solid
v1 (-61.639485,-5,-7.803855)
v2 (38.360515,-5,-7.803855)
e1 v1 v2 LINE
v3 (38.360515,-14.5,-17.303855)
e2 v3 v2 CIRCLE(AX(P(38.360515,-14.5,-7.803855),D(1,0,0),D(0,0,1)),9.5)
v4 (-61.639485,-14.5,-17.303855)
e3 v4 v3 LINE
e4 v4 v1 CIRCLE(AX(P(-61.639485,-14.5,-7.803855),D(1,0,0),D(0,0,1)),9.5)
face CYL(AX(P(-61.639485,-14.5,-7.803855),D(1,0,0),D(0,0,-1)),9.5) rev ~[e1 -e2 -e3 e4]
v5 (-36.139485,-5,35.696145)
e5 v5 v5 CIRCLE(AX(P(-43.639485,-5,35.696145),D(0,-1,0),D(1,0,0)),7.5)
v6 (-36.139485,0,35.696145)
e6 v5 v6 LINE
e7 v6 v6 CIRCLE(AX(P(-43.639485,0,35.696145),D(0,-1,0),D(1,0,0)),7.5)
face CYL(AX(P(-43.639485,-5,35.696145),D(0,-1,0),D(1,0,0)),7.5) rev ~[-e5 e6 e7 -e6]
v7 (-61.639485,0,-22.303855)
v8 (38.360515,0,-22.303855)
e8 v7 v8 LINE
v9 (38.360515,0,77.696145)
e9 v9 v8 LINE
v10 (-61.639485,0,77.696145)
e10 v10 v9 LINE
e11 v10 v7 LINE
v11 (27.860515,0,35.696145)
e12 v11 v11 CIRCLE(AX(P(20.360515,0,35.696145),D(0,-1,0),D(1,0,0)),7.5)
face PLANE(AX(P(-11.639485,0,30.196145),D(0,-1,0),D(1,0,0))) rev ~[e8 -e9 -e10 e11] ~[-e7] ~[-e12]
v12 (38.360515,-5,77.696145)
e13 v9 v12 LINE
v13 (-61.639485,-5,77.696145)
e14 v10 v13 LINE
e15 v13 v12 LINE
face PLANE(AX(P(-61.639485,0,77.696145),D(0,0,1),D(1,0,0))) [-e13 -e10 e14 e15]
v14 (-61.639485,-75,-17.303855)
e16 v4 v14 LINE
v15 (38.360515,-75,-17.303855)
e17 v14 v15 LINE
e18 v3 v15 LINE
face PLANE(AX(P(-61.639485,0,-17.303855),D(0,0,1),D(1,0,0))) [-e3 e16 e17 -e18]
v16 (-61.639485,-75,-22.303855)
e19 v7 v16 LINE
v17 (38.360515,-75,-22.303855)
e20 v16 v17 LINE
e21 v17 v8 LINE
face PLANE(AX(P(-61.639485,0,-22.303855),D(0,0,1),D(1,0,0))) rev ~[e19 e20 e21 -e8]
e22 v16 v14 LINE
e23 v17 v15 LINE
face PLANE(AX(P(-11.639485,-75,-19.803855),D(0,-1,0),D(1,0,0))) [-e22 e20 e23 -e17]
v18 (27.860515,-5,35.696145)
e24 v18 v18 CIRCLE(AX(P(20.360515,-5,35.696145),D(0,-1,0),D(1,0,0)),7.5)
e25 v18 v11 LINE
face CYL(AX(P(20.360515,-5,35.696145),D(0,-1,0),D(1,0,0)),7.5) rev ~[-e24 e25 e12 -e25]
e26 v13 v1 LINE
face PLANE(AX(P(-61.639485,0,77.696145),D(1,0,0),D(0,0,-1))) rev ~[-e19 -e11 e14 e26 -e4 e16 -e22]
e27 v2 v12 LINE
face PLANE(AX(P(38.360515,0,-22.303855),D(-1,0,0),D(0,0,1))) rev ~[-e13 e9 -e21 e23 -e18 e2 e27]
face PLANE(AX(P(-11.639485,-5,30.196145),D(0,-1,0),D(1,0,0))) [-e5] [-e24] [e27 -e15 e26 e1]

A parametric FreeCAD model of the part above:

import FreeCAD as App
import Part
import Sketcher
from FreeCAD import Vector
Q = App.Units.Quantity


def edges_at(feature, points):
    """Names of the edges that pass closest to the given points."""
    edges = feature.Shape.Edges
    near = lambda p: min(range(len(edges)), key=lambda i: edges[i].distToShape(Part.Vertex(*p))[0])
    return sorted({f"Edge{near(p) + 1}" for p in points})

doc = App.newDocument("Part")
params = doc.addObject("Spreadsheet::Sheet", "Params")
for row, (alias, value) in enumerate([
    ("sketch1_width", "100 mm"),
    ("sketch1_height", "5 mm"),
    ("pad1_length", "75 mm"),
    ("sketch2_width", "100 mm"),
    ("pad2_length", "5 mm"),
    ("fillet_radius", "9.5 mm"),
    ("sketch3_diameter", "15 mm"),
], start=1):
    params.set(f"A{row}", alias)
    params.set(f"B{row}", "=" + value)
    params.setAlias(f"B{row}", alias)

body = doc.addObject("PartDesign::Body", "Body")

# Sketch on XZ plane
sketch1 = body.newObject("Sketcher::SketchObject", "Sketch")
sketch1.AttachmentSupport = (doc.getObject("XZ_Plane"), [""])
sketch1.MapMode = "FlatFace"
sketch1.addGeometry([
    Part.LineSegment(Vector(-62, -17, 0), Vector(-62, -22, 0)),
    Part.LineSegment(Vector(-62, -22, 0), Vector(38, -22, 0)),
    Part.LineSegment(Vector(38, -22, 0), Vector(38, -17, 0)),
    Part.LineSegment(Vector(38, -17, 0), Vector(-62, -17, 0)),
], False)
sketch1.addConstraint([
    Sketcher.Constraint("Coincident", 0, 2, 1, 1),
    Sketcher.Constraint("Coincident", 1, 2, 2, 1),
    Sketcher.Constraint("Coincident", 2, 2, 3, 1),
    Sketcher.Constraint("Coincident", 3, 2, 0, 1),
    Sketcher.Constraint("Vertical", 0),
    Sketcher.Constraint("Horizontal", 1),
    Sketcher.Constraint("Vertical", 2),
    Sketcher.Constraint("Horizontal", 3),
    Sketcher.Constraint("DistanceX", 1, 1, 1, 2, Q("100 mm")),
    Sketcher.Constraint("DistanceY", 0, 2, 0, 1, Q("5 mm")),
    Sketcher.Constraint("DistanceX", 0, 2, -1, 1, Q("61.639485 mm")),
    Sketcher.Constraint("DistanceY", 0, 2, -1, 1, Q("22.303855 mm")),
])
sketch1.setExpression("Constraints[8]", "Params.sketch1_width")
sketch1.setExpression("Constraints[9]", "Params.sketch1_height")
pad1 = body.newObject("PartDesign::Pad", "Pad")
pad1.Profile = sketch1
pad1.setExpression("Length", "Params.pad1_length")

# Sketch on XZ plane
sketch2 = body.newObject("Sketcher::SketchObject", "Sketch001")
sketch2.AttachmentSupport = (doc.getObject("XZ_Plane"), [""])
sketch2.MapMode = "FlatFace"
sketch2.addGeometry([
    Part.LineSegment(Vector(-62, 78, 0), Vector(-62, -22, 0)),
    Part.LineSegment(Vector(-62, -22, 0), Vector(38, -22, 0)),
    Part.LineSegment(Vector(38, -22, 0), Vector(38, 78, 0)),
    Part.LineSegment(Vector(38, 78, 0), Vector(-62, 78, 0)),
], False)
sketch2.addConstraint([
    Sketcher.Constraint("Coincident", 0, 2, 1, 1),
    Sketcher.Constraint("Coincident", 1, 2, 2, 1),
    Sketcher.Constraint("Coincident", 2, 2, 3, 1),
    Sketcher.Constraint("Coincident", 3, 2, 0, 1),
    Sketcher.Constraint("Vertical", 0),
    Sketcher.Constraint("Horizontal", 1),
    Sketcher.Constraint("Vertical", 2),
    Sketcher.Constraint("Horizontal", 3),
    Sketcher.Constraint("Equal", 3, 0),
    Sketcher.Constraint("DistanceX", 1, 1, 1, 2, Q("100 mm")),
    Sketcher.Constraint("DistanceX", 0, 2, -1, 1, Q("61.639485 mm")),
    Sketcher.Constraint("DistanceY", 0, 2, -1, 1, Q("22.303855 mm")),
])
sketch2.setExpression("Constraints[9]", "Params.sketch2_width")
pad2 = body.newObject("PartDesign::Pad", "Pad001")
pad2.Profile = sketch2
pad2.setExpression("Length", "Params.pad2_length")
doc.recompute()

fillet = body.newObject("PartDesign::Fillet", "Fillet")
fillet.Base = (pad2, edges_at(pad2, [(-11.639, -5, -17.304)]))
fillet.setExpression("Radius", "Params.fillet_radius")

# Sketch on XZ plane
sketch3 = body.newObject("Sketcher::SketchObject", "Sketch002")
sketch3.AttachmentSupport = (doc.getObject("XZ_Plane"), [""])
sketch3.MapMode = "FlatFace"
sketch3.AttachmentOffset = App.Placement(Vector(0, 0, 5), App.Rotation())
sketch3.addGeometry([
    Part.Circle(Vector(20, 36, 0), Vector(0, 0, 1), 8),
    Part.Circle(Vector(-44, 36, 0), Vector(0, 0, 1), 8),
], False)
sketch3.addConstraint([
    Sketcher.Constraint("Equal", 0, 1),
    Sketcher.Constraint("Horizontal", 0, 3, 1, 3),
    Sketcher.Constraint("Diameter", 0, Q("15 mm")),
    Sketcher.Constraint("DistanceX", 1, 3, 0, 3, Q("64 mm")),
    Sketcher.Constraint("DistanceX", -1, 1, 0, 3, Q("20.360515 mm")),
    Sketcher.Constraint("DistanceY", -1, 1, 0, 3, Q("35.696145 mm")),
])
sketch3.setExpression("Constraints[2]", "Params.sketch3_diameter")
pocket1 = body.newObject("PartDesign::Pocket", "Pocket")
pocket1.Profile = sketch3
pocket1.Type = "ThroughAll"

doc.recompute()
